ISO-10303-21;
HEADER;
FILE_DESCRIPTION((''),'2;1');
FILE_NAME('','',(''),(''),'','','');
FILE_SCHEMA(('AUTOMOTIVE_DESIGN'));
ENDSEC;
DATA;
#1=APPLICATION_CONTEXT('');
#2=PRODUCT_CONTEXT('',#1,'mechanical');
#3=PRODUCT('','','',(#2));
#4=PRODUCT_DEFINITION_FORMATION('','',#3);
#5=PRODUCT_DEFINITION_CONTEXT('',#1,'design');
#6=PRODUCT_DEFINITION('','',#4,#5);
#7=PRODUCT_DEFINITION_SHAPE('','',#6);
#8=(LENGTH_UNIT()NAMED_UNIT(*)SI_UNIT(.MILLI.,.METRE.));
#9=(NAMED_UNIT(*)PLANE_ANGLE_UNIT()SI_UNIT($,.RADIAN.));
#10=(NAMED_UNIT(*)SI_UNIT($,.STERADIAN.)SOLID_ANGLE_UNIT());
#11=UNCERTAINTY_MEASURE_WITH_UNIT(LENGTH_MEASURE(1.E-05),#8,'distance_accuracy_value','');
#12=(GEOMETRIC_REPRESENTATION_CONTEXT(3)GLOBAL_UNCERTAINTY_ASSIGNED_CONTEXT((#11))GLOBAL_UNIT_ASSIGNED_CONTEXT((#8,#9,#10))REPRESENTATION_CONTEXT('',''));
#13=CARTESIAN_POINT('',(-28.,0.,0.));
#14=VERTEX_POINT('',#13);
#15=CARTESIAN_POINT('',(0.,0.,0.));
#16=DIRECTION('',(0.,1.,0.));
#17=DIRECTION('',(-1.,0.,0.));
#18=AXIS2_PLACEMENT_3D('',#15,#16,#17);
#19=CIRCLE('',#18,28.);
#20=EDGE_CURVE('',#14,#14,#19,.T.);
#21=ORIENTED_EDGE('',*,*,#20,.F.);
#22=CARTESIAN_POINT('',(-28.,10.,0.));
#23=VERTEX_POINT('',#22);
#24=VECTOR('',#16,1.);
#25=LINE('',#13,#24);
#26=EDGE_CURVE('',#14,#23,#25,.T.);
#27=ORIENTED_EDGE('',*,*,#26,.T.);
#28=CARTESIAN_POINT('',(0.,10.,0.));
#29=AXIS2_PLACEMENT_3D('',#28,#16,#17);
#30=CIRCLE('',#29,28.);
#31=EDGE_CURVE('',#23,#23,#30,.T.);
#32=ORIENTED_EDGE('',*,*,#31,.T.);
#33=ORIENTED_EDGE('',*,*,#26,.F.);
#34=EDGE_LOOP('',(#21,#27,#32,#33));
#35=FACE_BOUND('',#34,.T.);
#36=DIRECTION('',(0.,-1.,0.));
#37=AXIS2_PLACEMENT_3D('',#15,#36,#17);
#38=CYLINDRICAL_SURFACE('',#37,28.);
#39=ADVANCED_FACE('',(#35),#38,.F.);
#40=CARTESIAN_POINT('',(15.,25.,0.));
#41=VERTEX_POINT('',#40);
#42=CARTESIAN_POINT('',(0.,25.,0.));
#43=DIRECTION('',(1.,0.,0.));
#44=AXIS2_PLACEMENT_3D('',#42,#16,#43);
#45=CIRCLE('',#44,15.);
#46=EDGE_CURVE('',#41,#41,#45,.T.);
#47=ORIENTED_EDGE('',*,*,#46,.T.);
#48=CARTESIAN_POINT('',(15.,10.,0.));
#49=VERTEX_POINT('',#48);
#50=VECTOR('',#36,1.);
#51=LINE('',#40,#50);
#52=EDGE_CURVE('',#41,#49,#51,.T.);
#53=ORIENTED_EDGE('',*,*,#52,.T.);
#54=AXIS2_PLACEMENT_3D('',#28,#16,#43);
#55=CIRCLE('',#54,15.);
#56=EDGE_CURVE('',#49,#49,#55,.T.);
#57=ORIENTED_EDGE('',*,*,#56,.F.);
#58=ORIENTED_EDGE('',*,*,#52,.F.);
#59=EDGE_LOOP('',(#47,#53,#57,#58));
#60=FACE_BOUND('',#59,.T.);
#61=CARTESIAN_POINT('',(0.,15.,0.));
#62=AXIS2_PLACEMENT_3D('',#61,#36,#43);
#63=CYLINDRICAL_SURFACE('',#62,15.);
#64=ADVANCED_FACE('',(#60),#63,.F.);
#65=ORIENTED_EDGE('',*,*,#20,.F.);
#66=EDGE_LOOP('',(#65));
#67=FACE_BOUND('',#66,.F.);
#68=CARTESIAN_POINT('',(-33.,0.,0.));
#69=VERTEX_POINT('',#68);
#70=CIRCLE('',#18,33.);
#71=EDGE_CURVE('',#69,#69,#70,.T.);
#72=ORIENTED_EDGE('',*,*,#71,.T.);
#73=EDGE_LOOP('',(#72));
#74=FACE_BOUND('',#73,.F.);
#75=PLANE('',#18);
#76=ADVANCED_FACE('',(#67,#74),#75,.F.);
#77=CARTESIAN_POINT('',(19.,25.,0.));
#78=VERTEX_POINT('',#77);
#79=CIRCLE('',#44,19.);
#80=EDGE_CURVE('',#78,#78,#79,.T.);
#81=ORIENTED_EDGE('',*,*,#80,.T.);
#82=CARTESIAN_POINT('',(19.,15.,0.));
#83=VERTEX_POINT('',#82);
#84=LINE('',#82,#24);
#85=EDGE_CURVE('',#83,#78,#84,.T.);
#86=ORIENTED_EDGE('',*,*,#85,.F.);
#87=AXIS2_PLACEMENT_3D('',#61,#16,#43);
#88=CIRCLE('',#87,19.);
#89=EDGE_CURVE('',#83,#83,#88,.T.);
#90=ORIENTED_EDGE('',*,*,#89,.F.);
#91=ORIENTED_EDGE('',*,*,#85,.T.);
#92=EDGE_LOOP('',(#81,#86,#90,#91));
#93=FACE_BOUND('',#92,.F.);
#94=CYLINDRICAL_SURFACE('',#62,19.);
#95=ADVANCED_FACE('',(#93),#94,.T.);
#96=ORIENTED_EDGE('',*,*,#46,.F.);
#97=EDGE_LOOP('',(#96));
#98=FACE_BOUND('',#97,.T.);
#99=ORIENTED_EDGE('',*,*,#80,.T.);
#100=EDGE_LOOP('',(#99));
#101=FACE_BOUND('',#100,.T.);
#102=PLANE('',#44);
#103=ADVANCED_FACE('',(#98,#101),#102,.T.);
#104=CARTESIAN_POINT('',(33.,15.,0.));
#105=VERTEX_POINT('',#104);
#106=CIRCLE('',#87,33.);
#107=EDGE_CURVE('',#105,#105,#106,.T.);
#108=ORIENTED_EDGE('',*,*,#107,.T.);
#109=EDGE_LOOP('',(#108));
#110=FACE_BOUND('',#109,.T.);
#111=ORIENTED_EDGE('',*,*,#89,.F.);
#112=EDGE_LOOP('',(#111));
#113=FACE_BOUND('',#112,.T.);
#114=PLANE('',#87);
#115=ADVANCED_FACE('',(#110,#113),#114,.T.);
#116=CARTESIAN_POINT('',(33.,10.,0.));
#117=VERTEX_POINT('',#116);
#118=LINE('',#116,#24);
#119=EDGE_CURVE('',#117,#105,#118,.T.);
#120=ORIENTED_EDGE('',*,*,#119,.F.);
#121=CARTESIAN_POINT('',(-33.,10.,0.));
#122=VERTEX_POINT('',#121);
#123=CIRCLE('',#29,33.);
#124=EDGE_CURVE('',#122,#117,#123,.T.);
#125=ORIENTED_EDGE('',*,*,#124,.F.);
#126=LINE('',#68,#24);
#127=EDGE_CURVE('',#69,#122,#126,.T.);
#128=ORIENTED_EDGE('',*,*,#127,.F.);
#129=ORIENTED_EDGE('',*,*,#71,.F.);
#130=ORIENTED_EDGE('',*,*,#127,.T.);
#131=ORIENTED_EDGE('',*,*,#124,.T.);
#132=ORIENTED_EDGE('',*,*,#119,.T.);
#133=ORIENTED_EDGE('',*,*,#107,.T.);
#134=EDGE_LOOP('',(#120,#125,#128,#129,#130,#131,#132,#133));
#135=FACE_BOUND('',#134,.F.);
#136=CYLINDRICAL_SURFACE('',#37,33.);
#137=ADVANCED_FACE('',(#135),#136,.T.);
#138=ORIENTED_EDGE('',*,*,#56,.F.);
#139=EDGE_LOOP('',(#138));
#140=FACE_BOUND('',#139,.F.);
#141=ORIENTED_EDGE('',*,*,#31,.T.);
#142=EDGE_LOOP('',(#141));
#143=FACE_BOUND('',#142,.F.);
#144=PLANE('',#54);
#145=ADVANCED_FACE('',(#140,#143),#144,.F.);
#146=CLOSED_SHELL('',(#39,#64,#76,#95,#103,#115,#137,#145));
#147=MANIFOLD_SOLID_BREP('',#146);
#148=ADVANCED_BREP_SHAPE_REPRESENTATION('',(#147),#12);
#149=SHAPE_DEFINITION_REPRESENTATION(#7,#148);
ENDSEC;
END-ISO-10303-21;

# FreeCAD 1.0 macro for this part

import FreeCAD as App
import Part
import Sketcher

V = App.Vector

doc = App.newDocument("Part")
body = doc.addObject("PartDesign::Body", "Body")

sketch1 = body.newObject("Sketcher::SketchObject", "Sketch")
sketch1.AttachmentSupport = (doc.getObject("XZ_Plane"), [""])
sketch1.MapMode = "FlatFace"
sketch1.addGeometry([
    Part.Circle(V(0, 0, 0), V(0, 0, 1), 33),
    Part.Circle(V(0, 0, 0), V(0, 0, 1), 28),
], False)
sketch1.addConstraint([
    Sketcher.Constraint("Coincident", 0, 3, -1, 1),
    Sketcher.Constraint("Coincident", 1, 3, -1, 1),
    Sketcher.Constraint("Diameter", 0, 66.0),
    Sketcher.Constraint("Diameter", 1, 56.0),
])
pad1 = body.newObject("PartDesign::Pad", "Pad")
pad1.Profile = sketch1
pad1.Length = 10
pad1.Reversed = True

sketch2 = body.newObject("Sketcher::SketchObject", "Sketch001")
sketch2.AttachmentSupport = (doc.getObject("XZ_Plane"), [""])
sketch2.MapMode = "FlatFace"
sketch2.AttachmentOffset = App.Placement(V(0, 0, -10), App.Rotation())
sketch2.addGeometry([
    Part.Circle(V(0, 0, 0), V(0, 0, 1), 33),
    Part.Circle(V(0, 0, 0), V(0, 0, 1), 15),
], False)
sketch2.addConstraint([
    Sketcher.Constraint("Coincident", 0, 3, -1, 1),
    Sketcher.Constraint("Coincident", 1, 3, -1, 1),
    Sketcher.Constraint("Diameter", 1, 30.0),
    Sketcher.Constraint("Diameter", 0, 66.0),
])
pad2 = body.newObject("PartDesign::Pad", "Pad001")
pad2.Profile = sketch2
pad2.Length = 5
pad2.Reversed = True

sketch3 = body.newObject("Sketcher::SketchObject", "Sketch002")
sketch3.AttachmentSupport = (doc.getObject("XZ_Plane"), [""])
sketch3.MapMode = "FlatFace"
sketch3.AttachmentOffset = App.Placement(V(0, 0, -15), App.Rotation())
sketch3.addGeometry([
    Part.Circle(V(0, 0, 0), V(0, 0, 1), 19),
    Part.Circle(V(0, 0, 0), V(0, 0, 1), 15),
], False)
sketch3.addConstraint([
    Sketcher.Constraint("Coincident", 0, 3, -1, 1),
    Sketcher.Constraint("Coincident", 1, 3, -1, 1),
    Sketcher.Constraint("Diameter", 0, 38.0),
    Sketcher.Constraint("Diameter", 1, 30.0),
])
pad3 = body.newObject("PartDesign::Pad", "Pad002")
pad3.Profile = sketch3
pad3.Length = 10
pad3.Reversed = True

doc.recompute()
